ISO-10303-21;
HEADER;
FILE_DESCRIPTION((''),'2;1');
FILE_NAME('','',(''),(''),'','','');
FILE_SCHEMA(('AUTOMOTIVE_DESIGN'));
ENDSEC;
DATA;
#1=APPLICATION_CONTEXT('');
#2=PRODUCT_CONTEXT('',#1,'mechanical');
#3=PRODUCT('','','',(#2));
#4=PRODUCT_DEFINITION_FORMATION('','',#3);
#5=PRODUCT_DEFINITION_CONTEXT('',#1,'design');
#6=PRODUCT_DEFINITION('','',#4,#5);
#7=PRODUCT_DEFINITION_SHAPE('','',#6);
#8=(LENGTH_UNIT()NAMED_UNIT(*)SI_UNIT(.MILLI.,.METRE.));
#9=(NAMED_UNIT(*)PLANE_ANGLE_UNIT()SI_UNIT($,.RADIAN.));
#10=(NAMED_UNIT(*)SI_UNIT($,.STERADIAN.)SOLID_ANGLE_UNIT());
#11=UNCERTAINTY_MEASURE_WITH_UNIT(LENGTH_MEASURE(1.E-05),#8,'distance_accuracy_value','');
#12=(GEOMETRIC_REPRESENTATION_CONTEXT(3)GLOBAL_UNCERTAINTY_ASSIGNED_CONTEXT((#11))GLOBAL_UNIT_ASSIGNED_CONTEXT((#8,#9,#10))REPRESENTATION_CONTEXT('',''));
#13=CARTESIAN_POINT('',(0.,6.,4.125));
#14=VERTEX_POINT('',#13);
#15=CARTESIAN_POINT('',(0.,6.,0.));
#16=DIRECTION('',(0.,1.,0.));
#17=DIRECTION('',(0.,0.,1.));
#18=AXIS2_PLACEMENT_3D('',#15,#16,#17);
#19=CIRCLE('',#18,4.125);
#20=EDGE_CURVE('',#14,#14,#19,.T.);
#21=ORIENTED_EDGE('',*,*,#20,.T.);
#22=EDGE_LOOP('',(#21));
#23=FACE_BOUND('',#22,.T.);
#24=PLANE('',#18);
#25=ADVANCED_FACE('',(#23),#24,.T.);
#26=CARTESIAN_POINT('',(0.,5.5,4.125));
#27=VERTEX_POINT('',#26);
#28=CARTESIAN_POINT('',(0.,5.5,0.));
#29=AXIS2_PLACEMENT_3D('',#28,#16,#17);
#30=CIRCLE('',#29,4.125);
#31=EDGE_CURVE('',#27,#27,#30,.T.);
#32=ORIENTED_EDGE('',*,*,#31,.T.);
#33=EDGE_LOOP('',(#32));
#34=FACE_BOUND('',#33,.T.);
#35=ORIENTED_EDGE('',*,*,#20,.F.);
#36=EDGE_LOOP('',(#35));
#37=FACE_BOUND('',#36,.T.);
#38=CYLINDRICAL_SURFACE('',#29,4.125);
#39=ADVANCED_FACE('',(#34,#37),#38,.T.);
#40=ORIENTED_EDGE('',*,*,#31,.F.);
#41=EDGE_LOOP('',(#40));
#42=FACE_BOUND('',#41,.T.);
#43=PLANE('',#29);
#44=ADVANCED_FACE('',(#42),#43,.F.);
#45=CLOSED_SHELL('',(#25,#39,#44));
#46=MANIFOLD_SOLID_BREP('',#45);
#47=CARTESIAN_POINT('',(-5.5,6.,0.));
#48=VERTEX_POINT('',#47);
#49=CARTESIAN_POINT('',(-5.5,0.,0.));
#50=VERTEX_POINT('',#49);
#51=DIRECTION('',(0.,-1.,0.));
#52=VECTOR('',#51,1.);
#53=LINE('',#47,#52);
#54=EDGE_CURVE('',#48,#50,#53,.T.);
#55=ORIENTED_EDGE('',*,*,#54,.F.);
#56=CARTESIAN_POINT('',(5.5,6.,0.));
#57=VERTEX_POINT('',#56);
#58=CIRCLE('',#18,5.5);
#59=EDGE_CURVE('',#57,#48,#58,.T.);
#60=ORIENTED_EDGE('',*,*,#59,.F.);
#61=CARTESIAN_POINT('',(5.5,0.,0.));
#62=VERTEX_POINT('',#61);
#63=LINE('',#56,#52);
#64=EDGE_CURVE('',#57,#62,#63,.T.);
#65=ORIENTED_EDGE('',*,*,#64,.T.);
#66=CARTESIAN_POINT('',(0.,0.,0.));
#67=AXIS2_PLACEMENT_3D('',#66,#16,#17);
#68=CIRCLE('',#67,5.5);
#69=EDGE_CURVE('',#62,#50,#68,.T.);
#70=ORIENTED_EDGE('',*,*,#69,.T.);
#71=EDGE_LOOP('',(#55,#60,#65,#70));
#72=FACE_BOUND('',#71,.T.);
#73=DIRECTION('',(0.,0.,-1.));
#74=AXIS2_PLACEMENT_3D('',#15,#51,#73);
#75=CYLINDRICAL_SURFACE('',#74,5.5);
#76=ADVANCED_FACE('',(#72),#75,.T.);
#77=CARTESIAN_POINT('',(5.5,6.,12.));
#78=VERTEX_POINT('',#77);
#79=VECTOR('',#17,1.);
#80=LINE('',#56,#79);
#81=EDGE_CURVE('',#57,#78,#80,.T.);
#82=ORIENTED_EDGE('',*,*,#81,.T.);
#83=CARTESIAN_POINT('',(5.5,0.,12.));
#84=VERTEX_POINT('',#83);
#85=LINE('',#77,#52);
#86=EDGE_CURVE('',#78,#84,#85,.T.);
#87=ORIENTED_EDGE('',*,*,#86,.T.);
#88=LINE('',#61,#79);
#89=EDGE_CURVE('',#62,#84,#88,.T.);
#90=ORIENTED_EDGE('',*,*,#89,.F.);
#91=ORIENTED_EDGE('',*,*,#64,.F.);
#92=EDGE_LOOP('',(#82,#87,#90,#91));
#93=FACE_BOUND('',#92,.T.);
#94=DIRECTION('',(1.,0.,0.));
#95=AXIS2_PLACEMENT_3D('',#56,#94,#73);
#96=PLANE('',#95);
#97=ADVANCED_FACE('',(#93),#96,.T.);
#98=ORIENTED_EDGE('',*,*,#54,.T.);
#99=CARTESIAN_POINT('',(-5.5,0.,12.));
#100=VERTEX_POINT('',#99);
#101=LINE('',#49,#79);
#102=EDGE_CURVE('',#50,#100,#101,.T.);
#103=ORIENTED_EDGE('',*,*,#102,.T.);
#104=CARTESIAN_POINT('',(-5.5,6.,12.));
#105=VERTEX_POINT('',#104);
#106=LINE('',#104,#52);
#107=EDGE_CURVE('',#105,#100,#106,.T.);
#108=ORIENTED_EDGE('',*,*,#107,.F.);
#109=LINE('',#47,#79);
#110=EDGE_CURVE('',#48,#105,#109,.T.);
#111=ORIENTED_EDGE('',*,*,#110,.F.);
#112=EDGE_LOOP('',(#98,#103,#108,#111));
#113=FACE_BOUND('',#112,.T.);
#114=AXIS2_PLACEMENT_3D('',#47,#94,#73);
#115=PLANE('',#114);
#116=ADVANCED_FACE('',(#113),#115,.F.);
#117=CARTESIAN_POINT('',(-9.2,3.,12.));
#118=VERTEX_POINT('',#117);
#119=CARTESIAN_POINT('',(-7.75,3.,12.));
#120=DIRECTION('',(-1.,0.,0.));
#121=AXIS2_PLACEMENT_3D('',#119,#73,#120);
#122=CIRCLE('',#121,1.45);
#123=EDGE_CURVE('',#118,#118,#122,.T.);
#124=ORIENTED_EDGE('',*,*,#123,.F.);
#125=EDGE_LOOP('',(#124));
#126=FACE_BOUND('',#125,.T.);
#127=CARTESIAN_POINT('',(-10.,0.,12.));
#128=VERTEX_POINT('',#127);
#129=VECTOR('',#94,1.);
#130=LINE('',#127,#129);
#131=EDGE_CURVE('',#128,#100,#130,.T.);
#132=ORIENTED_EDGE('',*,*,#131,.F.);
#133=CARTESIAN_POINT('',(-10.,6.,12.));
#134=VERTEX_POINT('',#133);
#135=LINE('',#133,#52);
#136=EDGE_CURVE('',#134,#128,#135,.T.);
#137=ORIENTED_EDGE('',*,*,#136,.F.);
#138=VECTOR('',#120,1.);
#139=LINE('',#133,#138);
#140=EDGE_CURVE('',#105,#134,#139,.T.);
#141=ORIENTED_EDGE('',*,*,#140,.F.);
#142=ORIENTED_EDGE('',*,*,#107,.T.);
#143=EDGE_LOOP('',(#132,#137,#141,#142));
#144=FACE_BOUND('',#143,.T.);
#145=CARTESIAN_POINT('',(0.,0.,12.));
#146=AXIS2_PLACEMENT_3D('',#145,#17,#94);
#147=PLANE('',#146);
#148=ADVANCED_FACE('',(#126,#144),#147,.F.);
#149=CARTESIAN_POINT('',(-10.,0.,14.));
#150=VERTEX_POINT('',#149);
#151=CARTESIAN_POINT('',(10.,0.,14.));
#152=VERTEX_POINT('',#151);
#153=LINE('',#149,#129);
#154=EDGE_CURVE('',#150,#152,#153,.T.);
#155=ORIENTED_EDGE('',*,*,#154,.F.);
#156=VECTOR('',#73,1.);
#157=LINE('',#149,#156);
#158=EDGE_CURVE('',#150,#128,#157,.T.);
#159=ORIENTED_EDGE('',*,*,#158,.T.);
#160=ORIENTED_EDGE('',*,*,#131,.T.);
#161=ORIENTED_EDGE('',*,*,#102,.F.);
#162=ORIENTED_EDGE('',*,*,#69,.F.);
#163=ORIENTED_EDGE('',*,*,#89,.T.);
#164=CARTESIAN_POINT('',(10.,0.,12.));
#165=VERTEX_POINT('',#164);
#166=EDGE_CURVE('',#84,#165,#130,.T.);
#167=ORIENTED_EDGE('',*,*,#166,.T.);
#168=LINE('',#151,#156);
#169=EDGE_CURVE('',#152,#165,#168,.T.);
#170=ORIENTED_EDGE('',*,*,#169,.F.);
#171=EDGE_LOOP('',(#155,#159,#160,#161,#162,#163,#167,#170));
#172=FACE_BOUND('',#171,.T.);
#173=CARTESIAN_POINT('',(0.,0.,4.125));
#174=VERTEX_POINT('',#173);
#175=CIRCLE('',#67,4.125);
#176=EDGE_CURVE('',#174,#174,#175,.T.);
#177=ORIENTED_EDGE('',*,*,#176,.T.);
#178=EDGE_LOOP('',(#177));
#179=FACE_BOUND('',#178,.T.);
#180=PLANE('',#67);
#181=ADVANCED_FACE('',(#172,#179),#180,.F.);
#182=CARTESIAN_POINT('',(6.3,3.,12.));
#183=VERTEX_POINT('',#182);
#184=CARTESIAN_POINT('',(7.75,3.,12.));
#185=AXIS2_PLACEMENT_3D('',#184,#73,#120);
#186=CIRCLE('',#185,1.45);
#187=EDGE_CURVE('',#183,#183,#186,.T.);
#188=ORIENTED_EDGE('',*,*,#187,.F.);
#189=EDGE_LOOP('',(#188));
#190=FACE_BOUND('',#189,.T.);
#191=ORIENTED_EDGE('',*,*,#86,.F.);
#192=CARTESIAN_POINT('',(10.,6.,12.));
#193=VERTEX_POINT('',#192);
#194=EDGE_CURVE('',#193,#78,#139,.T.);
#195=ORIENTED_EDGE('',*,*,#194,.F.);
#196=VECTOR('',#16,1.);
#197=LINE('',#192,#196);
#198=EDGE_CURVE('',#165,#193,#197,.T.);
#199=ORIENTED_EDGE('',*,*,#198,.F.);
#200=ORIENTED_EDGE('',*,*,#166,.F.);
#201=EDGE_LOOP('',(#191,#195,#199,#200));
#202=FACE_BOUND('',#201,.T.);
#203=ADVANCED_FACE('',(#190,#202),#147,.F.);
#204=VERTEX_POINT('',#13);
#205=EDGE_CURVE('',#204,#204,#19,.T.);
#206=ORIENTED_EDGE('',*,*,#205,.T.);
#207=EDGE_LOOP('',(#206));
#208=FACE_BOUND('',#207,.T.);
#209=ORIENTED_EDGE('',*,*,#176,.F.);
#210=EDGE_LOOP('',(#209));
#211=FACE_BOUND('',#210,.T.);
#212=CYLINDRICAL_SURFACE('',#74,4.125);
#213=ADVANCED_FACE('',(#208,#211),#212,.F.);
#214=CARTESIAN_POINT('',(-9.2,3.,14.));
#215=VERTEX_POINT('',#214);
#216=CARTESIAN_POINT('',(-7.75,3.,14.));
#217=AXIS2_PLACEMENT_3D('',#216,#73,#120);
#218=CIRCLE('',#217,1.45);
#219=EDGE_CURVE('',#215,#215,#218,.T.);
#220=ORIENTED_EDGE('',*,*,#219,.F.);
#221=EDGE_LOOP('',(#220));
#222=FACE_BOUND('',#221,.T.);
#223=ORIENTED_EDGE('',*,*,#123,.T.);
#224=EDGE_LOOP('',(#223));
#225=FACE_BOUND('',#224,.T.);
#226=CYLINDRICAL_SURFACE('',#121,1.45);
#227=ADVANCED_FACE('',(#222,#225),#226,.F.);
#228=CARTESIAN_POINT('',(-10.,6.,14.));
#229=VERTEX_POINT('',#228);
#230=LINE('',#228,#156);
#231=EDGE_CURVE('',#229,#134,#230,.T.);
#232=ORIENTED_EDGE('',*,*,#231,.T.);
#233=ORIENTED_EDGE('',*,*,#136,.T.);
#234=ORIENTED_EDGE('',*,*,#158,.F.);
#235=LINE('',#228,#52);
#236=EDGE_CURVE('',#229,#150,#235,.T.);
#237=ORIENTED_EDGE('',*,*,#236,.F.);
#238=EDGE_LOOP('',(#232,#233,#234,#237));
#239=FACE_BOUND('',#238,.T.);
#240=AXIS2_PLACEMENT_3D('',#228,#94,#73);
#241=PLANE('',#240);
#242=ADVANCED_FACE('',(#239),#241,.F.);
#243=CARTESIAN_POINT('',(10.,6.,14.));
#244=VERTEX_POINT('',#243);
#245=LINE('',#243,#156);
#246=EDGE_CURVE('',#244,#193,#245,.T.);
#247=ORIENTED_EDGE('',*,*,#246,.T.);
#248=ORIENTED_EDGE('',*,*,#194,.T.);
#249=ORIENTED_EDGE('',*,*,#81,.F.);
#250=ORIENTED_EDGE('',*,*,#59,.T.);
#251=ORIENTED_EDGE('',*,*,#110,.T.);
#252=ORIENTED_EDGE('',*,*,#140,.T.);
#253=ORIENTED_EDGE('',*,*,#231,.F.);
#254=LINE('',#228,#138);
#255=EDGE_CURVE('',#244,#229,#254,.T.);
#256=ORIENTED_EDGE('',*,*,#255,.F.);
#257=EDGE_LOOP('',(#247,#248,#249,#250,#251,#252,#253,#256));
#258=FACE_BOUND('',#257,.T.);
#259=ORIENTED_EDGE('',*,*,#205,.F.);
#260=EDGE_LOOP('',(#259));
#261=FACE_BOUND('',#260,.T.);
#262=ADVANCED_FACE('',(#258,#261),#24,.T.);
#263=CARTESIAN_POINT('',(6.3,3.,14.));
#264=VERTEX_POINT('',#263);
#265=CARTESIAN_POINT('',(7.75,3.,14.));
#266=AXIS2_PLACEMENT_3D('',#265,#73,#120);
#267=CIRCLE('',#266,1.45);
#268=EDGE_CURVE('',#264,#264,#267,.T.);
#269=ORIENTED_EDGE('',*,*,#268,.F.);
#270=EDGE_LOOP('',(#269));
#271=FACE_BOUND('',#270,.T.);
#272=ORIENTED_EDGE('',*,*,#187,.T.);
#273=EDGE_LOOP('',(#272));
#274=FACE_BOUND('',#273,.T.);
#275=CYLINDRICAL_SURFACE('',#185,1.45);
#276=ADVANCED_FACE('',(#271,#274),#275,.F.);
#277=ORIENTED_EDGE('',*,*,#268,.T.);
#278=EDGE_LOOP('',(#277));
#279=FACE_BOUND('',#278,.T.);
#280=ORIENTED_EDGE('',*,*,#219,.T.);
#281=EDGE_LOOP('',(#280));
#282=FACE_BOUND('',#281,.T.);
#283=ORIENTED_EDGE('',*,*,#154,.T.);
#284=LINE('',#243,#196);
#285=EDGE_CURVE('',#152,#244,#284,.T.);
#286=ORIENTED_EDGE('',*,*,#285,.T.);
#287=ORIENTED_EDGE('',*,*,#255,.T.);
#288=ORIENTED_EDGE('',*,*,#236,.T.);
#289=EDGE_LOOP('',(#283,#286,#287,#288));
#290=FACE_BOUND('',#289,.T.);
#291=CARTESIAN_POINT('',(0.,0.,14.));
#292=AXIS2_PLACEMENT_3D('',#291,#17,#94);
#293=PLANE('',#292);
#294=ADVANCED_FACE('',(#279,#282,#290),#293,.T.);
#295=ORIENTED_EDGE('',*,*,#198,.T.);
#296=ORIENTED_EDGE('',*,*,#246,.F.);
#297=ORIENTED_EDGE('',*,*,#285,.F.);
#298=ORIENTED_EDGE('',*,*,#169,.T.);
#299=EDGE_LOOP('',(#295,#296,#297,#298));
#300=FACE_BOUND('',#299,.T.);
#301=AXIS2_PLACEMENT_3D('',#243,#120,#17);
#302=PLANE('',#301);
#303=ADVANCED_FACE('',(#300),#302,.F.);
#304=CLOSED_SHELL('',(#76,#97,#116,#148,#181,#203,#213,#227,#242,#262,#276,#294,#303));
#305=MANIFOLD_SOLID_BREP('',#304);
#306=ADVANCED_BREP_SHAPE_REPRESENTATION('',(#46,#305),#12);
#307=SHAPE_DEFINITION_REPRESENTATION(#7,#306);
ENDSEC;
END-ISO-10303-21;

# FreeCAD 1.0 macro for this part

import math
import FreeCAD as App
import Part
import Sketcher
Q = App.Units.Quantity

doc = App.newDocument("Part")
body = doc.addObject("PartDesign::Body", "Body")

# Sketch on XZ plane
sketch1 = doc.addObject("Sketcher::SketchObject", "Sketch")
body.addObject(sketch1)
sketch1.AttachmentSupport = (doc.XZ_Plane, [""])
sketch1.MapMode = "FlatFace"
sketch1.addGeometry([
    Part.LineSegment(App.Vector(-5.5, 0, 0), App.Vector(-5.5, 12, 0)),  # 0
    Part.LineSegment(App.Vector(-5.5, 12, 0), App.Vector(5.5, 12, 0)),  # 1
    Part.LineSegment(App.Vector(5.5, 12, 0), App.Vector(5.5, 0, 0)),  # 2
    Part.ArcOfCircle(Part.Circle(App.Vector(0, 0, 0), App.Vector(0, 0, 1), 5.5), math.radians(180), math.radians(360)),  # 3
    Part.Circle(App.Vector(0, 0, 0), App.Vector(0, 0, 1), 4.125),  # 4
], False)
sketch1.addConstraint([
    Sketcher.Constraint("Coincident", 0, 2, 1, 1),
    Sketcher.Constraint("Coincident", 1, 2, 2, 1),
    Sketcher.Constraint("Tangent", 2, 2, 3, 2),
    Sketcher.Constraint("Tangent", 3, 1, 0, 1),
    Sketcher.Constraint("Vertical", 0),
    Sketcher.Constraint("Horizontal", 1),
    Sketcher.Constraint("Vertical", 2),
    Sketcher.Constraint("Coincident", 3, 3, -1, 1),
    Sketcher.Constraint("Coincident", 4, 3, -1, 1),
    Sketcher.Constraint("Radius", 3, Q("5.5 mm")),
    Sketcher.Constraint("Diameter", 4, Q("8.25 mm")),
    Sketcher.Constraint("DistanceY", 0, 1, 0, 2, Q("12 mm")),
])
pad1 = doc.addObject("PartDesign::Pad", "Pad")
body.addObject(pad1)
pad1.Profile = sketch1
pad1.Length = 6
pad1.Reversed = True

# Sketch on XY plane
sketch2 = doc.addObject("Sketcher::SketchObject", "Sketch001")
body.addObject(sketch2)
sketch2.AttachmentSupport = (doc.XY_Plane, [""])
sketch2.MapMode = "FlatFace"
sketch2.AttachmentOffset = App.Placement(App.Vector(0, 0, 12), App.Rotation())
sketch2.addGeometry([
    Part.LineSegment(App.Vector(-10, 6, 0), App.Vector(-10, 0, 0)),
    Part.LineSegment(App.Vector(-10, 0, 0), App.Vector(10, 0, 0)),
    Part.LineSegment(App.Vector(10, 0, 0), App.Vector(10, 6, 0)),
    Part.LineSegment(App.Vector(10, 6, 0), App.Vector(-10, 6, 0)),
], False)
sketch2.addConstraint([
    Sketcher.Constraint("Coincident", 0, 2, 1, 1),
    Sketcher.Constraint("Coincident", 1, 2, 2, 1),
    Sketcher.Constraint("Coincident", 2, 2, 3, 1),
    Sketcher.Constraint("Coincident", 3, 2, 0, 1),
    Sketcher.Constraint("Vertical", 0),
    Sketcher.Constraint("Horizontal", 1),
    Sketcher.Constraint("Vertical", 2),
    Sketcher.Constraint("Horizontal", 3),
    Sketcher.Constraint("Symmetric", 0, 2, 1, 2, -1, 1),
    Sketcher.Constraint("DistanceX", 1, 1, 1, 2, Q("20 mm")),
    Sketcher.Constraint("DistanceY", 0, 2, 0, 1, Q("6 mm")),
])
pad2 = doc.addObject("PartDesign::Pad", "Pad001")
body.addObject(pad2)
pad2.Profile = sketch2
pad2.Length = 2

# Sketch on XY plane
sketch3 = doc.addObject("Sketcher::SketchObject", "Sketch002")
body.addObject(sketch3)
sketch3.AttachmentSupport = (doc.XY_Plane, [""])
sketch3.MapMode = "FlatFace"
sketch3.AttachmentOffset = App.Placement(App.Vector(0, 0, 12), App.Rotation())
sketch3.addGeometry([
    Part.Circle(App.Vector(-7.75, 3, 0), App.Vector(0, 0, 1), 1.45),
    Part.Circle(App.Vector(7.75, 3, 0), App.Vector(0, 0, 1), 1.45),
], False)
sketch3.addConstraint([
    Sketcher.Constraint("Equal", 0, 1),
    Sketcher.Constraint("Symmetric", 0, 3, 1, 3, -2),
    Sketcher.Constraint("Diameter", 0, Q("2.9 mm")),
    Sketcher.Constraint("DistanceY", -1, 1, 0, 3, Q("3 mm")),
    Sketcher.Constraint("DistanceX", 0, 3, 1, 3, Q("15.5 mm")),
])
doc.recompute()
hole = doc.addObject("PartDesign::Hole", "Hole")
body.addObject(hole)
hole.Profile = sketch3
hole.ThreadType = "None"
hole.Diameter = 2.9
hole.DepthType = "ThroughAll"
hole.Reversed = True
body2 = doc.addObject("PartDesign::Body", "Body001")

# Sketch on XZ plane
sketch4 = doc.addObject("Sketcher::SketchObject", "Sketch003")
body2.addObject(sketch4)
sketch4.AttachmentSupport = (doc.getObject("XZ_Plane001"), [""])
sketch4.MapMode = "FlatFace"
sketch4.AttachmentOffset = App.Placement(App.Vector(0, 0, -6), App.Rotation())
sketch4.addGeometry(Part.Circle(App.Vector(0, 0, 0), App.Vector(0, 0, 1), 4.125), False)
sketch4.addConstraint([
    Sketcher.Constraint("Coincident", 0, 3, -1, 1),
    Sketcher.Constraint("Diameter", 0, Q("8.25 mm")),
])
pad3 = doc.addObject("PartDesign::Pad", "Pad002")
body2.addObject(pad3)
pad3.Profile = sketch4
pad3.Length = 0.5

doc.recompute()
